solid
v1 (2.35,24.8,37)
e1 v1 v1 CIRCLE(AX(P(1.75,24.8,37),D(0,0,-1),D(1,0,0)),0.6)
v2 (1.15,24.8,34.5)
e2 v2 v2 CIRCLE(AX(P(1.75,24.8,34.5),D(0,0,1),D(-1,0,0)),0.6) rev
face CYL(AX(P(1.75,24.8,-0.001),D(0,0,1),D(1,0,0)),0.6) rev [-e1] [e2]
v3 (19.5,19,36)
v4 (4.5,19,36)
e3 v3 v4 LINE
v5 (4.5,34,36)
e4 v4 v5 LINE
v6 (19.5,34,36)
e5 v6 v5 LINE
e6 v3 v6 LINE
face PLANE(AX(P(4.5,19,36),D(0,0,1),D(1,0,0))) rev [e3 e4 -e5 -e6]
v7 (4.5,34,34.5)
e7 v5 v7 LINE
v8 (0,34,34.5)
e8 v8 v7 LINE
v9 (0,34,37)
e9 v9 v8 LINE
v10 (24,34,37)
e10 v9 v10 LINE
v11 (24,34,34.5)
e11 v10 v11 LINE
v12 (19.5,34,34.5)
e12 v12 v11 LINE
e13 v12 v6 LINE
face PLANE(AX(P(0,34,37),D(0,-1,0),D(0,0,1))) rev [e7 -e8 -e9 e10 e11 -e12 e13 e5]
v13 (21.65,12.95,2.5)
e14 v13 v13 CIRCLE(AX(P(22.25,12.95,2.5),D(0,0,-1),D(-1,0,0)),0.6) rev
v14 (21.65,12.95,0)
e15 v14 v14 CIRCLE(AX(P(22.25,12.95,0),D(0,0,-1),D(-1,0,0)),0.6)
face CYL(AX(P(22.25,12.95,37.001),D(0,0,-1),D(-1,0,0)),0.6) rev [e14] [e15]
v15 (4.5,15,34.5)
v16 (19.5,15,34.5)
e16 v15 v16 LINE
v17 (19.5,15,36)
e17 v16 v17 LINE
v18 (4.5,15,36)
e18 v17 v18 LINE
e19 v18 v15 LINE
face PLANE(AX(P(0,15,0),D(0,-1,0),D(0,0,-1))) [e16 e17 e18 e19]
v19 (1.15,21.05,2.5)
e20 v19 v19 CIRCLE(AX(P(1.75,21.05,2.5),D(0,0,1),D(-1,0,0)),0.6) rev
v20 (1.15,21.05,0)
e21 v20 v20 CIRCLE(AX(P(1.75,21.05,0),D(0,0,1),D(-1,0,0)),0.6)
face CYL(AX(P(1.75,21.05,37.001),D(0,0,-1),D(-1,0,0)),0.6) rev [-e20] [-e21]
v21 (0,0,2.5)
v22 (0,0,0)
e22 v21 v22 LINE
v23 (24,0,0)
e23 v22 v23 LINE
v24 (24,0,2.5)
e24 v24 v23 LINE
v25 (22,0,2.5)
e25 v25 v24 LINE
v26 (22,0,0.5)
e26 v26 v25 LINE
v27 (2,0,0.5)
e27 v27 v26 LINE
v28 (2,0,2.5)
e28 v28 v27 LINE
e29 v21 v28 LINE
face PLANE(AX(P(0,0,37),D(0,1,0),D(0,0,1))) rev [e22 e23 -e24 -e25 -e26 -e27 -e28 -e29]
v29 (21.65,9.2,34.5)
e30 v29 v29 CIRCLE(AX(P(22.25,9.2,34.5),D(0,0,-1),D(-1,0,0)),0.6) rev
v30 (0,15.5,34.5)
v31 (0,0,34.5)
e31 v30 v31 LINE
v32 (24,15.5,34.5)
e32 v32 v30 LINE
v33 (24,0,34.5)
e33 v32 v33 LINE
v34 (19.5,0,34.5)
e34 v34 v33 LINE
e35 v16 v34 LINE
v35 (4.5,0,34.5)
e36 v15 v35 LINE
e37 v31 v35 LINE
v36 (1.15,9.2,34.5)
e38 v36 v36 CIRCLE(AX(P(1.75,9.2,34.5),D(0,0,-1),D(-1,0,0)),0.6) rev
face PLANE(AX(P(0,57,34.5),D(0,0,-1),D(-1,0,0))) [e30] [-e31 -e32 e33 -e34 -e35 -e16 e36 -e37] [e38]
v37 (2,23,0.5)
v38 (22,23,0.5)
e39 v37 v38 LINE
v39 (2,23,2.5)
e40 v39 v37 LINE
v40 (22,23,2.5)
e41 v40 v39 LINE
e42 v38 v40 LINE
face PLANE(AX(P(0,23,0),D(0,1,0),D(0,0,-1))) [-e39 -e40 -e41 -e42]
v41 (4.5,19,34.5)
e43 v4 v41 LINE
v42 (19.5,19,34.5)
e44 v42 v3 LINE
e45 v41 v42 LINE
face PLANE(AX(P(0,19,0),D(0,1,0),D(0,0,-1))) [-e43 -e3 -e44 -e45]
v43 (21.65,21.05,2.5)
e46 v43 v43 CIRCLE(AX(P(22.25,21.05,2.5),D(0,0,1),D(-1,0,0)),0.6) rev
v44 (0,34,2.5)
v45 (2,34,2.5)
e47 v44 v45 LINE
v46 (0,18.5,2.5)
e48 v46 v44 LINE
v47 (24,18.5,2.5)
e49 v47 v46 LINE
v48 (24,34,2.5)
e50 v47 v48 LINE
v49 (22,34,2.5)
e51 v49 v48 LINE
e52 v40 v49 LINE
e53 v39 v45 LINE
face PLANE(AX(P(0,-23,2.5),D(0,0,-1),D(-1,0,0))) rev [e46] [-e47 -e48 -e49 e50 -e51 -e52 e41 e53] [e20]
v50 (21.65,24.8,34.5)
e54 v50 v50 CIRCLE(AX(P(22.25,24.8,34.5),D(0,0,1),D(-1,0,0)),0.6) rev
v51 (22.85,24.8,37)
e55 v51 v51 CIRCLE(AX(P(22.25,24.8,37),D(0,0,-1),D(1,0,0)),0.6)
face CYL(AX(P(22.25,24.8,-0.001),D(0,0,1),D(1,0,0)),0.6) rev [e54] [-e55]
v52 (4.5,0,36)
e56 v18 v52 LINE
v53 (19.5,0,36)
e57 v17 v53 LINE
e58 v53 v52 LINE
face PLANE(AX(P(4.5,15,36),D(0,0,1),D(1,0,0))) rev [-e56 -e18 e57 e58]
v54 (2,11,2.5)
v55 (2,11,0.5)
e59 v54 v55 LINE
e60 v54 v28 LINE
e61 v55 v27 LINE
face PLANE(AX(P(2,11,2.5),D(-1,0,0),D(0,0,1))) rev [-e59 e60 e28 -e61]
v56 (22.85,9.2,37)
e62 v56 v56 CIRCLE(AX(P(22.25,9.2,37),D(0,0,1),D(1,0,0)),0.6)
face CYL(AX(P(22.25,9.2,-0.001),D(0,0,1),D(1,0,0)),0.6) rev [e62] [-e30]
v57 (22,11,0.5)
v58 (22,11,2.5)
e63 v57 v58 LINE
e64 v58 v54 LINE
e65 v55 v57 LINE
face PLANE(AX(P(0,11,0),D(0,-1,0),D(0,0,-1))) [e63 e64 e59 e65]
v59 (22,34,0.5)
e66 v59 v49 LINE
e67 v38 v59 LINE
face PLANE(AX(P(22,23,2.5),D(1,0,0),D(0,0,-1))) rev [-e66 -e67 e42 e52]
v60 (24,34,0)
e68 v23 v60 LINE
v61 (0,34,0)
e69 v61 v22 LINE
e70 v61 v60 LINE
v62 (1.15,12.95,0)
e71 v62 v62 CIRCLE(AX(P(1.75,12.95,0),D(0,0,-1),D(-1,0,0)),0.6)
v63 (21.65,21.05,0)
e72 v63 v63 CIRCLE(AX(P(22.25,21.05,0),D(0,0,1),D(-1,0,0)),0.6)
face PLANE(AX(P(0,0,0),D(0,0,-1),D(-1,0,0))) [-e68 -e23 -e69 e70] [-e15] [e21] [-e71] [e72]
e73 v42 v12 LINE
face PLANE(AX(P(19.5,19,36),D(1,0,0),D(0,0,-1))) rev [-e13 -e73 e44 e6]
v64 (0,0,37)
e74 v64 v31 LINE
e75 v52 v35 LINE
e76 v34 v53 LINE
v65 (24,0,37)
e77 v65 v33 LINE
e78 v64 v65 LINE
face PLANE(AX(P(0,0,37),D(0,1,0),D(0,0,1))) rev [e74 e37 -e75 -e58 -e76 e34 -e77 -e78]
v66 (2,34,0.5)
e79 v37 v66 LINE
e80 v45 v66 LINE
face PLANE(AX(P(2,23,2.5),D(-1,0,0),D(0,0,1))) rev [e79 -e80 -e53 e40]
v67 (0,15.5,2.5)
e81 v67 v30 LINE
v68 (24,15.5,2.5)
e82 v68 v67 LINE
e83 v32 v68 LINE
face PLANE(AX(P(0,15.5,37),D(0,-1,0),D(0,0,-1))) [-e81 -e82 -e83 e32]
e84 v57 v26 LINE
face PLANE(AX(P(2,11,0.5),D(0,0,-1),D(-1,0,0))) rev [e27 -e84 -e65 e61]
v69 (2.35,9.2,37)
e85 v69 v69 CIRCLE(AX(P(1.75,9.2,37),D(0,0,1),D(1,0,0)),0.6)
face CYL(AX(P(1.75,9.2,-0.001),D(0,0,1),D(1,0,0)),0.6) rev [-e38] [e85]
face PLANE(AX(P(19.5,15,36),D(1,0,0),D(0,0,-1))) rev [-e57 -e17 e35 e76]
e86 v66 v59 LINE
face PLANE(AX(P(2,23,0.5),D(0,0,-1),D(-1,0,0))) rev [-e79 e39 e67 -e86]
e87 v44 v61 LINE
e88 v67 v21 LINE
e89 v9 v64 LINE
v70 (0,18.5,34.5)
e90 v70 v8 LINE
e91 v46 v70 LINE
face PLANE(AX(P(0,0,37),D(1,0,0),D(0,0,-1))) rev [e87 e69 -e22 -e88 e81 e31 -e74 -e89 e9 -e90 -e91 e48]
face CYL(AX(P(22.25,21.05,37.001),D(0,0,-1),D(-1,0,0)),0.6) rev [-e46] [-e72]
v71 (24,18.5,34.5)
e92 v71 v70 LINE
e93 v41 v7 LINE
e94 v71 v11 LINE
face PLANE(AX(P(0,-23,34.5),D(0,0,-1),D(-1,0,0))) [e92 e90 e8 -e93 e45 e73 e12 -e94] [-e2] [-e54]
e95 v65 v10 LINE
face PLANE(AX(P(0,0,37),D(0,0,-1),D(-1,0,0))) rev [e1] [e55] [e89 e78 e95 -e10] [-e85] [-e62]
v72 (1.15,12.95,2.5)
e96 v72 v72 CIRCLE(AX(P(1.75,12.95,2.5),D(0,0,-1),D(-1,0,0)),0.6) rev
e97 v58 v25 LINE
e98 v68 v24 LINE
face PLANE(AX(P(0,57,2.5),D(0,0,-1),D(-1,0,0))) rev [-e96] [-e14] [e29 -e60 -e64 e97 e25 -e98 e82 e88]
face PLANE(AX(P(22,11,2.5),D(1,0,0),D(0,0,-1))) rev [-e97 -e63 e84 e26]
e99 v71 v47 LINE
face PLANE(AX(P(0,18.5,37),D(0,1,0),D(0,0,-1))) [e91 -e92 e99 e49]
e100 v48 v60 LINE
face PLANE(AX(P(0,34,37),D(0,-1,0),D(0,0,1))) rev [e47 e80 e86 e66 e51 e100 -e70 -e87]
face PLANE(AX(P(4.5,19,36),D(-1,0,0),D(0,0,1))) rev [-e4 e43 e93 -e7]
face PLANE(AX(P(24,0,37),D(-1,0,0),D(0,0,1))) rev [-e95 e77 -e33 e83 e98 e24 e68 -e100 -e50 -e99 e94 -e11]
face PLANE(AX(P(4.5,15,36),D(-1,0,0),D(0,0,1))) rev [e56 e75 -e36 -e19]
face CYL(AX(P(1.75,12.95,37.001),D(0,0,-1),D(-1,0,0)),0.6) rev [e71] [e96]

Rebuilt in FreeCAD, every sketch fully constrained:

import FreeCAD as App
import Part
import Sketcher

V = App.Vector
Q = App.Units.Quantity


def add_polygon(sketch, points):
    """Adds a closed chain of lines whose ends are joined by coincident constraints."""
    first, n = sketch.GeometryCount, len(points)
    for a, b in zip(points, points[1:] + points[:1]):
        sketch.addGeometry(Part.LineSegment(App.Vector(*a, 0), App.Vector(*b, 0)), False)
    for i in range(n):
        sketch.addConstraint(Sketcher.Constraint("Coincident", first + i, 2, first + (i + 1) % n, 1))

doc = App.newDocument("Part")
body = doc.addObject("PartDesign::Body", "Body")

sketch1 = body.newObject("Sketcher::SketchObject", "Sketch")
sketch1.AttachmentSupport = (doc.getObject("XY_Plane"), [""])
sketch1.MapMode = "FlatFace"
add_polygon(sketch1, [(0, 17), (0, 0), (24, 0), (24, 17)])
sketch1.addConstraint([
    Sketcher.Constraint("Vertical", 0),
    Sketcher.Constraint("Horizontal", 1),
    Sketcher.Constraint("Vertical", 2),
    Sketcher.Constraint("Horizontal", 3),
    Sketcher.Constraint("Coincident", 0, 2, -1, 1),
    Sketcher.Constraint("DistanceX", 1, 1, 1, 2, Q("24 mm")),
    Sketcher.Constraint("DistanceY", 0, 2, 0, 1, Q("17 mm")),
])
pad1 = body.newObject("PartDesign::Pad", "Pad")
pad1.Profile = sketch1
pad1.Length = 37

sketch2 = body.newObject("Sketcher::SketchObject", "Sketch001")
sketch2.AttachmentSupport = (doc.getObject("XZ_Plane"), [""])
sketch2.MapMode = "FlatFace"
add_polygon(sketch2, [(24, 34), (0, 34), (0, 2), (24, 2)])
sketch2.addConstraint([
    Sketcher.Constraint("Horizontal", 0),
    Sketcher.Constraint("Vertical", 1),
    Sketcher.Constraint("Horizontal", 2),
    Sketcher.Constraint("Vertical", 3),
    Sketcher.Constraint("PointOnObject", 0, 2, -2),
    Sketcher.Constraint("DistanceX", 0, 2, 0, 1, Q("24 mm")),
    Sketcher.Constraint("DistanceY", 1, 2, 1, 1, Q("32 mm")),
    Sketcher.Constraint("DistanceY", -1, 1, 0, 2, Q("34.5 mm")),
])
pocket1 = body.newObject("PartDesign::Pocket", "Pocket")
pocket1.Profile = sketch2
pocket1.Length = 15.5

sketch3 = body.newObject("Sketcher::SketchObject", "Sketch002")
sketch3.AttachmentSupport = (doc.getObject("XY_Plane"), [""])
sketch3.MapMode = "FlatFace"
sketch3.AttachmentOffset = App.Placement(V(0, 0, 37), App.Rotation())
sketch3.addGeometry(Part.Circle(V(1.8, 9.2, 0), V(0, 0, 1), 0.6), False)
sketch3.addConstraint([
    Sketcher.Constraint("Diameter", 0, Q("1.2 mm")),
    Sketcher.Constraint("DistanceY", -1, 1, 0, 3, Q("9.2 mm")),
    Sketcher.Constraint("DistanceX", -1, 1, 0, 3, Q("1.75 mm")),
])
pocket2 = body.newObject("PartDesign::Pocket", "Pocket001")
pocket2.Profile = sketch3
pocket2.Type = "UpToFirst"

sketch4 = body.newObject("Sketcher::SketchObject", "Sketch003")
sketch4.AttachmentSupport = (doc.getObject("XY_Plane"), [""])
sketch4.MapMode = "FlatFace"
sketch4.AttachmentOffset = App.Placement(V(0, 0, 37), App.Rotation())
sketch4.addGeometry(Part.Circle(V(22.2, 9.2, 0), V(0, 0, 1), 0.6), False)
sketch4.addConstraint([
    Sketcher.Constraint("Diameter", 0, Q("1.2 mm")),
    Sketcher.Constraint("DistanceY", -1, 1, 0, 3, Q("9.2 mm")),
    Sketcher.Constraint("DistanceX", -1, 1, 0, 3, Q("22.25 mm")),
])
pocket3 = body.newObject("PartDesign::Pocket", "Pocket002")
pocket3.Profile = sketch4
pocket3.Type = "UpToFirst"

sketch5 = body.newObject("Sketcher::SketchObject", "Sketch004")
sketch5.AttachmentSupport = (doc.getObject("XY_Plane"), [""])
sketch5.MapMode = "FlatFace"
sketch5.addGeometry(Part.Circle(V(22.2, 12.9, 0), V(0, 0, 1), 0.6), False)
sketch5.addConstraint([
    Sketcher.Constraint("Diameter", 0, Q("1.2 mm")),
    Sketcher.Constraint("DistanceX", -1, 1, 0, 3, Q("22.25 mm")),
    Sketcher.Constraint("DistanceY", -1, 1, 0, 3, Q("12.95 mm")),
])
pocket4 = body.newObject("PartDesign::Pocket", "Pocket003")
pocket4.Profile = sketch5
pocket4.Type = "UpToFirst"
pocket4.Reversed = True

sketch6 = body.newObject("Sketcher::SketchObject", "Sketch005")
sketch6.AttachmentSupport = (doc.getObject("XY_Plane"), [""])
sketch6.MapMode = "FlatFace"
sketch6.addGeometry(Part.Circle(V(1.8, 12.9, 0), V(0, 0, 1), 0.6), False)
sketch6.addConstraint([
    Sketcher.Constraint("Diameter", 0, Q("1.2 mm")),
    Sketcher.Constraint("DistanceX", -1, 1, 0, 3, Q("1.75 mm")),
    Sketcher.Constraint("DistanceY", -1, 1, 0, 3, Q("12.95 mm")),
])
pocket5 = body.newObject("PartDesign::Pocket", "Pocket004")
pocket5.Profile = sketch6
pocket5.Type = "UpToFirst"
pocket5.Reversed = True

sketch7 = body.newObject("Sketcher::SketchObject", "Sketch006")
sketch7.AttachmentSupport = (doc.getObject("XZ_Plane"), [""])
sketch7.MapMode = "FlatFace"
add_polygon(sketch7, [(2, 2.5), (2, 0.5), (22, 0.5), (22, 2.5)])
sketch7.addConstraint([
    Sketcher.Constraint("Vertical", 0),
    Sketcher.Constraint("Horizontal", 1),
    Sketcher.Constraint("Vertical", 2),
    Sketcher.Constraint("Horizontal", 3),
    Sketcher.Constraint("DistanceX", 1, 1, 1, 2, Q("20 mm")),
    Sketcher.Constraint("DistanceY", 0, 2, 0, 1, Q("2 mm")),
    Sketcher.Constraint("DistanceX", -1, 1, 0, 2, Q("2 mm")),
    Sketcher.Constraint("DistanceY", -1, 1, 0, 2, Q("0.5 mm")),
])
pocket6 = body.newObject("PartDesign::Pocket", "Pocket005")
pocket6.Profile = sketch7
pocket6.Length = 11

sketch8 = body.newObject("Sketcher::SketchObject", "Sketch007")
sketch8.AttachmentSupport = (doc.getObject("XZ_Plane"), [""])
sketch8.MapMode = "FlatFace"
add_polygon(sketch8, [(4.5, 36), (4.5, 34.5), (19.5, 34.5), (19.5, 36)])
sketch8.addConstraint([
    Sketcher.Constraint("Vertical", 0),
    Sketcher.Constraint("Horizontal", 1),
    Sketcher.Constraint("Vertical", 2),
    Sketcher.Constraint("Horizontal", 3),
    Sketcher.Constraint("DistanceX", 1, 1, 1, 2, Q("15 mm")),
    Sketcher.Constraint("DistanceY", 0, 2, 0, 1, Q("1.5 mm")),
    Sketcher.Constraint("DistanceY", -1, 1, 2, 2, Q("36 mm")),
    Sketcher.Constraint("DistanceX", -1, 1, 0, 2, Q("4.5 mm")),
])
pocket7 = body.newObject("PartDesign::Pocket", "Pocket006")
pocket7.Profile = sketch8
pocket7.Length = 15
body2 = doc.addObject("PartDesign::Body", "Body001")
doc.recompute()

body2.BaseFeature = body
doc.recompute()

mirroring = doc.addObject("Part::Mirroring", "Mirroring")
mirroring.Source = body
mirroring.Base = V(0, 17, 0)
mirroring.Normal = V(0, 1, 0)
body3 = doc.addObject("PartDesign::Body", "Body002")
body3.BaseFeature = mirroring
boolean = body2.newObject("PartDesign::Boolean", "Boolean")
boolean.Type = "Fuse"
boolean.addObjects([body3])
doc.recompute()
mirroring.Visibility = False

doc.recompute()
